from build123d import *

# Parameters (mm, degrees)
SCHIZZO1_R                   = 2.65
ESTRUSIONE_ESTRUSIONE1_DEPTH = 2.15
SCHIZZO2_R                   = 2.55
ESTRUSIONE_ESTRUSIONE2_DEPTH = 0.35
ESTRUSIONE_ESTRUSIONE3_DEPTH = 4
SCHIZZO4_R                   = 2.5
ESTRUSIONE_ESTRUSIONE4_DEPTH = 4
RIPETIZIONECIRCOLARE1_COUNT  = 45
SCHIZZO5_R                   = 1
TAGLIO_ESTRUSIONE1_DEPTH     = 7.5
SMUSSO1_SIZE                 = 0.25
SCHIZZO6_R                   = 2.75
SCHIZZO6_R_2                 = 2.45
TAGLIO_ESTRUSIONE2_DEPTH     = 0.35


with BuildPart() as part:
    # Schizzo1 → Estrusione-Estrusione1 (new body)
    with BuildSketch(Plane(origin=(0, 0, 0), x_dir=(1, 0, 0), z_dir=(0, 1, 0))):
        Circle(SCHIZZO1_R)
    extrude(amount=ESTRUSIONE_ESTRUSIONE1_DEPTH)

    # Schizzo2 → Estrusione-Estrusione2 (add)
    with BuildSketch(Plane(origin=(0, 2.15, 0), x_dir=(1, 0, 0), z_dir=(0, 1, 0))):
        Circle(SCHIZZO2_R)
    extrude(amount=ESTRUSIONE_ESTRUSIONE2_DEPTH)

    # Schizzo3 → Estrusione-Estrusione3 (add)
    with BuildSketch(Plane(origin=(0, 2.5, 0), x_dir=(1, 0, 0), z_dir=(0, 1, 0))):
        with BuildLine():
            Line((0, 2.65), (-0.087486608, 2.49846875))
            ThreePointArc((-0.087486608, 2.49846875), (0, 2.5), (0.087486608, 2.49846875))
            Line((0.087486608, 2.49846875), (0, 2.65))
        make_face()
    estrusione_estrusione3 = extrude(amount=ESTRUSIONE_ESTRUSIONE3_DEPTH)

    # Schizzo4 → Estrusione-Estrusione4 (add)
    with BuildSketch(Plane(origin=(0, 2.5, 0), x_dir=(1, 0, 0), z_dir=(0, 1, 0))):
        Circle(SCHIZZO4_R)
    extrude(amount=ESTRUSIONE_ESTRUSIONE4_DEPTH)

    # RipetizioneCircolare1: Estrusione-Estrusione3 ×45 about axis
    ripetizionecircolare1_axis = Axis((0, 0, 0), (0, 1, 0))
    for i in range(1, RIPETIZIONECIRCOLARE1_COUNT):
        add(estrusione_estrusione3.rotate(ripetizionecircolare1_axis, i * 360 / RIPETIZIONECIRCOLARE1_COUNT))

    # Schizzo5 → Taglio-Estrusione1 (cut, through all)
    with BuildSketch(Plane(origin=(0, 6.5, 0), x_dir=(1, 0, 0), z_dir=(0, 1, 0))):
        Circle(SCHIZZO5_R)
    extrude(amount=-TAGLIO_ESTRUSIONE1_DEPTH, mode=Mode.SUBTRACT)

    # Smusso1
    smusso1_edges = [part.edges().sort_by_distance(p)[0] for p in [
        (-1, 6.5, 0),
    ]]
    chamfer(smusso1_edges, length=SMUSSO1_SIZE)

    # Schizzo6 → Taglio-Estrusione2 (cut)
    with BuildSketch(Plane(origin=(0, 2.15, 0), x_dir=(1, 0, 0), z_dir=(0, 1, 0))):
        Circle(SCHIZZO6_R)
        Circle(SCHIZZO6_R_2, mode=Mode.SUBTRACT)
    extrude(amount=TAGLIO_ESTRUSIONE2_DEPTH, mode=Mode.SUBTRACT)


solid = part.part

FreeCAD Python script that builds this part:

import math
import FreeCAD as App
import Part
import Sketcher

V = App.Vector
Q = App.Units.Quantity


def edges_at(feature, points):
    """Names of the edges that pass closest to the given points."""
    edges = feature.Shape.Edges
    near = lambda p: min(range(len(edges)), key=lambda i: edges[i].distToShape(Part.Vertex(*p))[0])
    return sorted({f"Edge{near(p) + 1}" for p in points})

doc = App.newDocument("Part")
body = doc.addObject("PartDesign::Body", "Body")

# Sketch on XZ plane
sketch1 = doc.addObject("Sketcher::SketchObject", "Sketch")
body.addObject(sketch1)
sketch1.AttachmentSupport = (doc.XZ_Plane, [""])
sketch1.MapMode = "FlatFace"
sketch1.addGeometry(Part.Circle(V(0, 0, 0), V(0, 0, 1), 2.6), False)
sketch1.addConstraint([
    Sketcher.Constraint("Coincident", 0, 3, -1, 1),
    Sketcher.Constraint("Diameter", 0, 5.3),
])
pad1 = doc.addObject("PartDesign::Pad", "Pad")
body.addObject(pad1)
pad1.Profile = sketch1
pad1.Length = 2.15
pad1.Reversed = True

# Sketch on XZ plane
sketch2 = doc.addObject("Sketcher::SketchObject", "Sketch001")
body.addObject(sketch2)
sketch2.AttachmentSupport = (doc.XZ_Plane, [""])
sketch2.MapMode = "FlatFace"
sketch2.AttachmentOffset = App.Placement(V(0, 0, -2.15), App.Rotation())
sketch2.addGeometry(Part.Circle(V(0, 0, 0), V(0, 0, 1), 2.5), False)
sketch2.addConstraint([
    Sketcher.Constraint("Coincident", 0, 3, -1, 1),
    Sketcher.Constraint("Diameter", 0, 5.1),
])
pad2 = doc.addObject("PartDesign::Pad", "Pad001")
body.addObject(pad2)
pad2.Profile = sketch2
pad2.Length = 0.35
pad2.Reversed = True

# Sketch on XZ plane
sketch3 = doc.addObject("Sketcher::SketchObject", "Sketch002")
body.addObject(sketch3)
sketch3.AttachmentSupport = (doc.XZ_Plane, [""])
sketch3.MapMode = "FlatFace"
sketch3.AttachmentOffset = App.Placement(V(0, 0, -2.5), App.Rotation())
sketch3.addGeometry([
    Part.LineSegment(V(0, -2.65, 0), V(-0.09, -2.5, 0)),
    Part.ArcOfCircle(Part.Circle(V(0, 0, 0), V(0, 0, 1), 2.5), math.radians(-92.01), math.radians(-87.99)),
    Part.LineSegment(V(0.09, -2.5, 0), V(0, -2.65, 0)),
], False)
sketch3.addConstraint([
    Sketcher.Constraint("Coincident", 0, 2, 1, 1),
    Sketcher.Constraint("Coincident", 1, 2, 2, 1),
    Sketcher.Constraint("Coincident", 2, 2, 0, 1),
    Sketcher.Constraint("Coincident", 1, 3, -1, 1),
    Sketcher.Constraint("PointOnObject", 2, 2, -2),
    Sketcher.Constraint("Horizontal", 0, 2, 1, 2),
    Sketcher.Constraint("Radius", 1, 2.5),
    Sketcher.Constraint("Angle", 0, Q("120 deg")),
    Sketcher.Constraint("DistanceY", 2, 2, -1, 1, 2.65),
])
pad3 = doc.addObject("PartDesign::Pad", "Pad002")
body.addObject(pad3)
pad3.Profile = sketch3
pad3.Length = 4
pad3.Reversed = True

# Sketch on XZ plane
sketch4 = doc.addObject("Sketcher::SketchObject", "Sketch003")
body.addObject(sketch4)
sketch4.AttachmentSupport = (doc.XZ_Plane, [""])
sketch4.MapMode = "FlatFace"
sketch4.AttachmentOffset = App.Placement(V(0, 0, -2.5), App.Rotation())
sketch4.addGeometry(Part.Circle(V(0, 0, 0), V(0, 0, 1), 2.5), False)
sketch4.addConstraint([
    Sketcher.Constraint("Coincident", 0, 3, -1, 1),
    Sketcher.Constraint("Diameter", 0, 5.0),
])
pad4 = doc.addObject("PartDesign::Pad", "Pad003")
body.addObject(pad4)
pad4.Profile = sketch4
pad4.Length = 4
pad4.Reversed = True
doc.recompute()

polarpattern = doc.addObject("PartDesign::PolarPattern", "PolarPattern")
body.addObject(polarpattern)
polarpattern.Originals = [pad3]
polarpattern.Axis = (doc.Y_Axis, [""])
polarpattern.Angle = 360
polarpattern.Occurrences = 45
body.Tip = polarpattern

# Sketch on XZ plane
sketch5 = doc.addObject("Sketcher::SketchObject", "Sketch004")
body.addObject(sketch5)
sketch5.AttachmentSupport = (doc.XZ_Plane, [""])
sketch5.MapMode = "FlatFace"
sketch5.AttachmentOffset = App.Placement(V(0, 0, -6.5), App.Rotation())
sketch5.addGeometry(Part.Circle(V(0, 0, 0), V(0, 0, 1), 1), False)
sketch5.addConstraint([
    Sketcher.Constraint("Coincident", 0, 3, -1, 1),
    Sketcher.Constraint("Diameter", 0, 2.0),
])
pocket1 = doc.addObject("PartDesign::Pocket", "Pocket")
body.addObject(pocket1)
pocket1.Profile = sketch5
pocket1.Type = "ThroughAll"
pocket1.Reversed = True
doc.recompute()

chamfer = doc.addObject("PartDesign::Chamfer", "Chamfer")
body.addObject(chamfer)
chamfer.Base = (pocket1, edges_at(pocket1, [(-1, 6.5, 0)]))
chamfer.Size = 0.25

# Sketch on XZ plane
sketch6 = doc.addObject("Sketcher::SketchObject", "Sketch005")
body.addObject(sketch6)
sketch6.AttachmentSupport = (doc.XZ_Plane, [""])
sketch6.MapMode = "FlatFace"
sketch6.AttachmentOffset = App.Placement(V(0, 0, -2.15), App.Rotation())
sketch6.addGeometry([
    Part.Circle(V(0, 0, 0), V(0, 0, 1), 2.8),
    Part.Circle(V(0, 0, 0), V(0, 0, 1), 2.5),
], False)
sketch6.addConstraint([
    Sketcher.Constraint("Coincident", 0, 3, -1, 1),
    Sketcher.Constraint("Coincident", 1, 3, -1, 1),
    Sketcher.Constraint("Diameter", 0, 5.5),
    Sketcher.Constraint("Diameter", 1, 4.9),
])
pocket2 = doc.addObject("PartDesign::Pocket", "Pocket001")
body.addObject(pocket2)
pocket2.Profile = sketch6
pocket2.Length = 0.35

doc.recompute()
